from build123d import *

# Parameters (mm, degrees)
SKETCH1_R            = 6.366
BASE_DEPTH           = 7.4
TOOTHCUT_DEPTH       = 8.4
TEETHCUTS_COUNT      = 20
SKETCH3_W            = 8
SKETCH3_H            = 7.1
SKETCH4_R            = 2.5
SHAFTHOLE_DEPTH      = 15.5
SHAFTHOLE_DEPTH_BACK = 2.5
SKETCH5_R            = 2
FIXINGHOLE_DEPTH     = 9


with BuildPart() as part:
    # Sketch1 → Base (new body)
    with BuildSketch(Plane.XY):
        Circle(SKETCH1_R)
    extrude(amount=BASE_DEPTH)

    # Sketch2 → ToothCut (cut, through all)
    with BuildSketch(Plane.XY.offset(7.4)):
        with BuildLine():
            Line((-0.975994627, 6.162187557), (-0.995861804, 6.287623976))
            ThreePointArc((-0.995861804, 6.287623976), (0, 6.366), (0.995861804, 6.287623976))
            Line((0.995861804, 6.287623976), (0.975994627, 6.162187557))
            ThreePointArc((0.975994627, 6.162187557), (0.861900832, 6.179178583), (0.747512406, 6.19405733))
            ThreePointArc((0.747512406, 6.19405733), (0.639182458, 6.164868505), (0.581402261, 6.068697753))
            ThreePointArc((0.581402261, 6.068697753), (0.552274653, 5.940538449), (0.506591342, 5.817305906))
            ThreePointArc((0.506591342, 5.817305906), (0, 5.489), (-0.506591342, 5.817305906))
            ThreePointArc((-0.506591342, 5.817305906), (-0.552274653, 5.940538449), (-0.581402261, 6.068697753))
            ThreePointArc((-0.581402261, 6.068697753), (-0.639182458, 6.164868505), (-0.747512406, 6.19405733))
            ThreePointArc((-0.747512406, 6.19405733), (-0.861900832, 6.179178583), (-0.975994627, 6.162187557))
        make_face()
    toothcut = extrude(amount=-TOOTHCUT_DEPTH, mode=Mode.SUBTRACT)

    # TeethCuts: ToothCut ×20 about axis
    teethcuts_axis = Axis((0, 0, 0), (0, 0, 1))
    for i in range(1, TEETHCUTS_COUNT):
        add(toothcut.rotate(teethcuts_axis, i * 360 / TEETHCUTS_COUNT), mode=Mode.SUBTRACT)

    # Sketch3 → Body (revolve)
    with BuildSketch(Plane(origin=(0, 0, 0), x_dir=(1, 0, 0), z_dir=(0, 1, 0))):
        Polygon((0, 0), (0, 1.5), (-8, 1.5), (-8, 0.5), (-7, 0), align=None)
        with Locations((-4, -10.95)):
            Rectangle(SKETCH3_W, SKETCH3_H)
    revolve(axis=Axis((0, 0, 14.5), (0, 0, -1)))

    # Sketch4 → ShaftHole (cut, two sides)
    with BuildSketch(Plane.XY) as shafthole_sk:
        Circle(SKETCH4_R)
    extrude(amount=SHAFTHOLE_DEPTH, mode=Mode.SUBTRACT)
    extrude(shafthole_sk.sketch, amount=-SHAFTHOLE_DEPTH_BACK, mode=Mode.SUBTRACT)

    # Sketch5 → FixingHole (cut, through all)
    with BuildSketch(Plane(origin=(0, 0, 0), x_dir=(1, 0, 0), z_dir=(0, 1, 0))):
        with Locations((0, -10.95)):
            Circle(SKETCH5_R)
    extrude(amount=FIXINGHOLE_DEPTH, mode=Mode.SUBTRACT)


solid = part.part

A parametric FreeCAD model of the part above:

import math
import FreeCAD as App
import Part
import Sketcher
from FreeCAD import Vector
Q = App.Units.Quantity


def add_polygon(sketch, points):
    """Adds a closed chain of lines whose ends are joined by coincident constraints."""
    first, n = sketch.GeometryCount, len(points)
    for a, b in zip(points, points[1:] + points[:1]):
        sketch.addGeometry(Part.LineSegment(App.Vector(*a, 0), App.Vector(*b, 0)), False)
    for i in range(n):
        sketch.addConstraint(Sketcher.Constraint("Coincident", first + i, 2, first + (i + 1) % n, 1))

doc = App.newDocument("Part")
params = doc.addObject("Spreadsheet::Sheet", "Params")
for row, (alias, value) in enumerate([
    ("pad1_length", "7.4 mm"),
    ("sketch2_radius", "1 mm"),
    ("sketch2_radius2", "0.15 mm"),
    ("sketch3_width", "8 mm"),
    ("sketch3_width2", "7 mm"),
    ("sketch3_height", "1 mm"),
    ("sketch3_height2", "1.5 mm"),
    ("sketch3_height3", "7.1 mm"),
    ("revolution_angle", "360 deg"),
    ("sketch4_diameter", "5 mm"),
    ("sketch5_diameter", "4 mm"),
], start=1):
    params.set(f"A{row}", alias)
    params.set(f"B{row}", "=" + value)
    params.setAlias(f"B{row}", alias)

body = doc.addObject("PartDesign::Body", "Body")

sketch1 = body.newObject("Sketcher::SketchObject", "Sketch")
sketch1.AttachmentSupport = (doc.getObject("XY_Plane"), [""])
sketch1.MapMode = "FlatFace"
sketch1.addGeometry(Part.Circle(Vector(0, 0, 0), Vector(0, 0, 1), 6), False)
sketch1.addConstraint([
    Sketcher.Constraint("Coincident", 0, 3, -1, 1),
    Sketcher.Constraint("Diameter", 0, 12.732),
])
pad1 = body.newObject("PartDesign::Pad", "Pad")
pad1.Profile = sketch1
pad1.setExpression("Length", "Params.pad1_length")

sketch2 = body.newObject("Sketcher::SketchObject", "Sketch001")
sketch2.AttachmentSupport = (doc.getObject("XY_Plane"), [""])
sketch2.MapMode = "FlatFace"
sketch2.AttachmentOffset = App.Placement(Vector(0, 0, 7.4), App.Rotation())
sketch2.addGeometry([
    Part.LineSegment(Vector(-1, 6.29, 0), Vector(-0.98, 6.16, 0)),
    Part.ArcOfCircle(Part.Circle(Vector(0, 0, 0), Vector(0, 0, 1), 6.24), math.radians(96.88), math.radians(99)),
    Part.ArcOfCircle(Part.Circle(Vector(-0.73, 6.05, 0), Vector(0, 0, 1), 0.15), math.radians(9), math.radians(97)),
    Part.ArcOfCircle(Part.Circle(Vector(0.41, 6.23, 0), Vector(0, 0, 1), 1), math.radians(-170.96), math.radians(-155.89)),
    Part.ArcOfCircle(Part.Circle(Vector(0, 6.04, 0), Vector(0, 0, 1), 0.56), math.radians(-156), math.radians(-24)),
    Part.ArcOfCircle(Part.Circle(Vector(-0.41, 6.23, 0), Vector(0, 0, 1), 1), math.radians(-24.11), math.radians(-9.04)),
    Part.ArcOfCircle(Part.Circle(Vector(0.73, 6.05, 0), Vector(0, 0, 1), 0.15), math.radians(83), math.radians(171)),
    Part.ArcOfCircle(Part.Circle(Vector(0, 0, 0), Vector(0, 0, 1), 6.24), math.radians(81), math.radians(83.12)),
    Part.LineSegment(Vector(0.98, 6.16, 0), Vector(1, 6.29, 0)),
    Part.ArcOfCircle(Part.Circle(Vector(0, 0, 0), Vector(0, 0, 1), 6.37), math.radians(81), math.radians(99)),
], False)
sketch2.addConstraint([
    Sketcher.Constraint("Coincident", 0, 2, 1, 2),
    Sketcher.Constraint("Tangent", 1, 1, 2, 2),
    Sketcher.Constraint("Tangent", 2, 1, 3, 1),
    Sketcher.Constraint("Tangent", 3, 2, 4, 1),
    Sketcher.Constraint("Tangent", 4, 2, 5, 1),
    Sketcher.Constraint("Tangent", 5, 2, 6, 2),
    Sketcher.Constraint("Tangent", 6, 1, 7, 2),
    Sketcher.Constraint("Coincident", 7, 1, 8, 1),
    Sketcher.Constraint("Coincident", 8, 2, 9, 1),
    Sketcher.Constraint("Coincident", 9, 2, 0, 1),
    Sketcher.Constraint("Coincident", 1, 3, -1, 1),
    Sketcher.Constraint("Coincident", 7, 3, -1, 1),
    Sketcher.Constraint("Coincident", 9, 3, -1, 1),
    Sketcher.Constraint("Equal", 3, 5),
    Sketcher.Constraint("Equal", 2, 6),
    Sketcher.Constraint("Equal", 1, 7),
    Sketcher.Constraint("Symmetric", 3, 3, 5, 3, -2),
    Sketcher.Constraint("Horizontal", 0, 2, 7, 1),
    Sketcher.Constraint("Horizontal", 8, 2, 9, 2),
    Sketcher.Constraint("Radius", 3, 1.0),
    Sketcher.Constraint("Angle", 0, Q("-81 deg")),
    Sketcher.Constraint("Radius", 2, 0.15),
    Sketcher.Constraint("Radius", 1, 6.238999),
    Sketcher.Constraint("Radius", 4, 0.555),
    Sketcher.Constraint("Radius", 9, 6.366),
    Sketcher.Constraint("DistanceY", -1, 1, 4, 3, 6.044),
    Sketcher.Constraint("DistanceX", 1, 1, 3, 3, 1.153698),
    Sketcher.Constraint("DistanceX", -1, 1, 8, 2, 0.995862),
])
sketch2.setExpression("Constraints[19]", "Params.sketch2_radius")
sketch2.setExpression("Constraints[21]", "Params.sketch2_radius2")
pocket1 = body.newObject("PartDesign::Pocket", "Pocket")
pocket1.Profile = sketch2
pocket1.Type = "ThroughAll"
doc.recompute()

polarpattern = body.newObject("PartDesign::PolarPattern", "PolarPattern")
polarpattern.Originals = [pocket1]
polarpattern.Axis = (doc.getObject("Z_Axis"), [""])
polarpattern.Angle = 360
polarpattern.Occurrences = 20
body.Tip = polarpattern

sketch3 = body.newObject("Sketcher::SketchObject", "Sketch002")
sketch3.AttachmentSupport = (doc.getObject("XZ_Plane"), [""])
sketch3.MapMode = "FlatFace"
add_polygon(sketch3, [(0, 0), (0, -1.5), (-8, -1.5), (-8, -0.5), (-7, 0)])
add_polygon(sketch3, [(-8, 7.4), (-8, 14.5), (0, 14.5), (0, 7.4)])
sketch3.addConstraint([
    Sketcher.Constraint("Vertical", 0),
    Sketcher.Constraint("Horizontal", 1),
    Sketcher.Constraint("Vertical", 2),
    Sketcher.Constraint("Horizontal", 4),
    Sketcher.Constraint("Vertical", 5),
    Sketcher.Constraint("Horizontal", 6),
    Sketcher.Constraint("Vertical", 7),
    Sketcher.Constraint("Horizontal", 8),
    Sketcher.Constraint("Coincident", 4, 2, -1, 1),
    Sketcher.Constraint("PointOnObject", 6, 2, -2),
    Sketcher.Constraint("Vertical", 2, 2, 5, 2),
    Sketcher.Constraint("DistanceX", 1, 2, 1, 1, 8.0),
    Sketcher.Constraint("DistanceX", 4, 1, 4, 2, 7.0),
    Sketcher.Constraint("DistanceY", 2, 1, 2, 2, 1.0),
    Sketcher.Constraint("DistanceY", 0, 2, 0, 1, 1.5),
    Sketcher.Constraint("DistanceY", 5, 1, 5, 2, 7.1),
    Sketcher.Constraint("DistanceY", 2, 2, 5, 2, 15.0),
])
sketch3.setExpression("Constraints[20]", "Params.sketch3_width")
sketch3.setExpression("Constraints[21]", "Params.sketch3_width2")
sketch3.setExpression("Constraints[22]", "Params.sketch3_height")
sketch3.setExpression("Constraints[23]", "Params.sketch3_height2")
sketch3.setExpression("Constraints[24]", "Params.sketch3_height3")
revolution = body.newObject("PartDesign::Revolution", "Revolution")
revolution.Profile = sketch3
revolution.ReferenceAxis = (sketch3, ["V_Axis"])
revolution.setExpression("Angle", "Params.revolution_angle")

sketch4 = body.newObject("Sketcher::SketchObject", "Sketch003")
sketch4.AttachmentSupport = (doc.getObject("XY_Plane"), [""])
sketch4.MapMode = "FlatFace"
sketch4.addGeometry(Part.Circle(Vector(0, 0, 0), Vector(0, 0, 1), 2.5), False)
sketch4.addConstraint([
    Sketcher.Constraint("Coincident", 0, 3, -1, 1),
    Sketcher.Constraint("Diameter", 0, 5.0),
])
sketch4.setExpression("Constraints[1]", "Params.sketch4_diameter")
pocket2 = body.newObject("PartDesign::Pocket", "Pocket001")
pocket2.Profile = sketch4
pocket2.Type = "ThroughAll"
pocket2.Midplane = True

sketch5 = body.newObject("Sketcher::SketchObject", "Sketch004")
sketch5.AttachmentSupport = (doc.getObject("XZ_Plane"), [""])
sketch5.MapMode = "FlatFace"
sketch5.addGeometry(Part.Circle(Vector(0, 10.9, 0), Vector(0, 0, 1), 2), False)
sketch5.addConstraint([
    Sketcher.Constraint("PointOnObject", 0, 3, -2),
    Sketcher.Constraint("Diameter", 0, 4.0),
    Sketcher.Constraint("DistanceY", -1, 1, 0, 3, 10.95),
])
sketch5.setExpression("Constraints[1]", "Params.sketch5_diameter")
pocket3 = body.newObject("PartDesign::Pocket", "Pocket002")
pocket3.Profile = sketch5
pocket3.Type = "ThroughAll"

doc.recompute()
